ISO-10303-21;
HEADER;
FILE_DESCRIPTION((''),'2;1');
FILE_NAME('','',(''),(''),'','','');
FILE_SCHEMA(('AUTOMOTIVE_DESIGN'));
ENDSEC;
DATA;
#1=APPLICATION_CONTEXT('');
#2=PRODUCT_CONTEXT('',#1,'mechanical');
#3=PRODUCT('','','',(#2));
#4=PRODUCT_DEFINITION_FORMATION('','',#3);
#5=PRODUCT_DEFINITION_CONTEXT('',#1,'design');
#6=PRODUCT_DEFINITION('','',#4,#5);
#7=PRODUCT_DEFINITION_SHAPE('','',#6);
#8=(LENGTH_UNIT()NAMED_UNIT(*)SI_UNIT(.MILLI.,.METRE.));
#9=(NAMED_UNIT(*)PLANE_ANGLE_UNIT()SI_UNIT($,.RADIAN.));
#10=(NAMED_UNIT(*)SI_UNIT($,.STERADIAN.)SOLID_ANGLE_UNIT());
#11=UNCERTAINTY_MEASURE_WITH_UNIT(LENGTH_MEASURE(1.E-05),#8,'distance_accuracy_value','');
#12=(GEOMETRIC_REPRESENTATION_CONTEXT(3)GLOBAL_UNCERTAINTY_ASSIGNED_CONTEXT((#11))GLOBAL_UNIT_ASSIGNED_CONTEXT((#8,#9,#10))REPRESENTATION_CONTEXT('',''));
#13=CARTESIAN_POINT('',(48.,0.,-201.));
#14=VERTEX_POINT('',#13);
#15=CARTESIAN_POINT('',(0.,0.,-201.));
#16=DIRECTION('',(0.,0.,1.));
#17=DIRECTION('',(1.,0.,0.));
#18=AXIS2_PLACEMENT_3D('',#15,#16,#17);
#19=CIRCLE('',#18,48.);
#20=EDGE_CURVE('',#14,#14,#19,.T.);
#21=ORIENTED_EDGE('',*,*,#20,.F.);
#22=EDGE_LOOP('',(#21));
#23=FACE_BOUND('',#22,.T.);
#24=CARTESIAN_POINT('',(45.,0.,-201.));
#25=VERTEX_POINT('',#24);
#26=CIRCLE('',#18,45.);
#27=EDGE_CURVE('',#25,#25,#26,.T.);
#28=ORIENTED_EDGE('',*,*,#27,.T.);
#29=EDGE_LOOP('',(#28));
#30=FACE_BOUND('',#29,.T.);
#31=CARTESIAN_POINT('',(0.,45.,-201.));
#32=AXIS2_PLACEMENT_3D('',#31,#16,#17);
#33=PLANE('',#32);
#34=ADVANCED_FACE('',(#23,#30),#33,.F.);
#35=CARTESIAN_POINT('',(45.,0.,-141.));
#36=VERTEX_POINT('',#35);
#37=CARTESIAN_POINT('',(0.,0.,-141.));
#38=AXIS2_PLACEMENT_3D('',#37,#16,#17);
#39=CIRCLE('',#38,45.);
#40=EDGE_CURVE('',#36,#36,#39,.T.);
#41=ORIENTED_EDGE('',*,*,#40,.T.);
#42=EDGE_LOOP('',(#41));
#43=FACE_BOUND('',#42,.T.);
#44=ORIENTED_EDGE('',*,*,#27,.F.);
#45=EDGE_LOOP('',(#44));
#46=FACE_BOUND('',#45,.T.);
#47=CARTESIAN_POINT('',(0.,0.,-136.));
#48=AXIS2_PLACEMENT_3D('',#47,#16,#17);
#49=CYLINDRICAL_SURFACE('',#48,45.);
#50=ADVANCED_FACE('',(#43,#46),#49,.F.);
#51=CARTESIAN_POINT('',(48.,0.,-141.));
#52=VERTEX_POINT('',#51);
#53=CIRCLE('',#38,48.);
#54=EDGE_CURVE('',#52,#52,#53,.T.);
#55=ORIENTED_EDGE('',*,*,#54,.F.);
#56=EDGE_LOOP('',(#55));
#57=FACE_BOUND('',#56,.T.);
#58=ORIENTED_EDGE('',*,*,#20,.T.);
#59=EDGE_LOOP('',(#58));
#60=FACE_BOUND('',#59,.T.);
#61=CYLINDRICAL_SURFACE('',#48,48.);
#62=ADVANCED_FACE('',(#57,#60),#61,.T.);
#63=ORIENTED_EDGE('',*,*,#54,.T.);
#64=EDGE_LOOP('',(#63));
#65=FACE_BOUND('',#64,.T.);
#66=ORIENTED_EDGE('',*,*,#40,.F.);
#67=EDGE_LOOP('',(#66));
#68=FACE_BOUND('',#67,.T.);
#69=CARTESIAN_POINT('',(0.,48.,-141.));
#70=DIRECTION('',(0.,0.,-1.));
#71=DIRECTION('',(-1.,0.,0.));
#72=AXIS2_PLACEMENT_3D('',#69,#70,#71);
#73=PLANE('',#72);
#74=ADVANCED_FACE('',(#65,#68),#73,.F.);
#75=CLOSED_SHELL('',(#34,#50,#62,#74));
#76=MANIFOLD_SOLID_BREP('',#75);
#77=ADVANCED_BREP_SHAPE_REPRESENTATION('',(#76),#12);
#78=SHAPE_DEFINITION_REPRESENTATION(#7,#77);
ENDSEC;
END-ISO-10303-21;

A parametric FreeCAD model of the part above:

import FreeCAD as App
import Part
import Sketcher
from FreeCAD import Vector
Q = App.Units.Quantity


def add_polygon(sketch, points):
    """Adds a closed chain of lines whose ends are joined by coincident constraints."""
    first, n = sketch.GeometryCount, len(points)
    for a, b in zip(points, points[1:] + points[:1]):
        sketch.addGeometry(Part.LineSegment(App.Vector(*a, 0), App.Vector(*b, 0)), False)
    for i in range(n):
        sketch.addConstraint(Sketcher.Constraint("Coincident", first + i, 2, first + (i + 1) % n, 1))

doc = App.newDocument("Part")
body = doc.addObject("PartDesign::Body", "Body")

# Sketch on YZ plane
sketch1 = body.newObject("Sketcher::SketchObject", "Sketch")
sketch1.AttachmentSupport = (doc.getObject("YZ_Plane"), [""])
sketch1.MapMode = "FlatFace"
add_polygon(sketch1, [(48, -141), (45, -141), (45, -201), (48, -201)])  # lines 0-3
sketch1.addConstraint([
    Sketcher.Constraint("Horizontal", 0),
    Sketcher.Constraint("Vertical", 1),
    Sketcher.Constraint("Horizontal", 2),
    Sketcher.Constraint("Vertical", 3),
    Sketcher.Constraint("DistanceX", 0, 2, 0, 1, Q("3 mm")),
    Sketcher.Constraint("DistanceY", 1, 2, 1, 1, Q("60 mm")),
    Sketcher.Constraint("DistanceX", -1, 1, 0, 2, Q("45 mm")),
    Sketcher.Constraint("DistanceY", 0, 2, -1, 1, Q("141 mm")),
])
revolution = body.newObject("PartDesign::Revolution", "Revolution")
revolution.Profile = sketch1
revolution.ReferenceAxis = (sketch1, ["V_Axis"])
revolution.Angle = 360

doc.recompute()
